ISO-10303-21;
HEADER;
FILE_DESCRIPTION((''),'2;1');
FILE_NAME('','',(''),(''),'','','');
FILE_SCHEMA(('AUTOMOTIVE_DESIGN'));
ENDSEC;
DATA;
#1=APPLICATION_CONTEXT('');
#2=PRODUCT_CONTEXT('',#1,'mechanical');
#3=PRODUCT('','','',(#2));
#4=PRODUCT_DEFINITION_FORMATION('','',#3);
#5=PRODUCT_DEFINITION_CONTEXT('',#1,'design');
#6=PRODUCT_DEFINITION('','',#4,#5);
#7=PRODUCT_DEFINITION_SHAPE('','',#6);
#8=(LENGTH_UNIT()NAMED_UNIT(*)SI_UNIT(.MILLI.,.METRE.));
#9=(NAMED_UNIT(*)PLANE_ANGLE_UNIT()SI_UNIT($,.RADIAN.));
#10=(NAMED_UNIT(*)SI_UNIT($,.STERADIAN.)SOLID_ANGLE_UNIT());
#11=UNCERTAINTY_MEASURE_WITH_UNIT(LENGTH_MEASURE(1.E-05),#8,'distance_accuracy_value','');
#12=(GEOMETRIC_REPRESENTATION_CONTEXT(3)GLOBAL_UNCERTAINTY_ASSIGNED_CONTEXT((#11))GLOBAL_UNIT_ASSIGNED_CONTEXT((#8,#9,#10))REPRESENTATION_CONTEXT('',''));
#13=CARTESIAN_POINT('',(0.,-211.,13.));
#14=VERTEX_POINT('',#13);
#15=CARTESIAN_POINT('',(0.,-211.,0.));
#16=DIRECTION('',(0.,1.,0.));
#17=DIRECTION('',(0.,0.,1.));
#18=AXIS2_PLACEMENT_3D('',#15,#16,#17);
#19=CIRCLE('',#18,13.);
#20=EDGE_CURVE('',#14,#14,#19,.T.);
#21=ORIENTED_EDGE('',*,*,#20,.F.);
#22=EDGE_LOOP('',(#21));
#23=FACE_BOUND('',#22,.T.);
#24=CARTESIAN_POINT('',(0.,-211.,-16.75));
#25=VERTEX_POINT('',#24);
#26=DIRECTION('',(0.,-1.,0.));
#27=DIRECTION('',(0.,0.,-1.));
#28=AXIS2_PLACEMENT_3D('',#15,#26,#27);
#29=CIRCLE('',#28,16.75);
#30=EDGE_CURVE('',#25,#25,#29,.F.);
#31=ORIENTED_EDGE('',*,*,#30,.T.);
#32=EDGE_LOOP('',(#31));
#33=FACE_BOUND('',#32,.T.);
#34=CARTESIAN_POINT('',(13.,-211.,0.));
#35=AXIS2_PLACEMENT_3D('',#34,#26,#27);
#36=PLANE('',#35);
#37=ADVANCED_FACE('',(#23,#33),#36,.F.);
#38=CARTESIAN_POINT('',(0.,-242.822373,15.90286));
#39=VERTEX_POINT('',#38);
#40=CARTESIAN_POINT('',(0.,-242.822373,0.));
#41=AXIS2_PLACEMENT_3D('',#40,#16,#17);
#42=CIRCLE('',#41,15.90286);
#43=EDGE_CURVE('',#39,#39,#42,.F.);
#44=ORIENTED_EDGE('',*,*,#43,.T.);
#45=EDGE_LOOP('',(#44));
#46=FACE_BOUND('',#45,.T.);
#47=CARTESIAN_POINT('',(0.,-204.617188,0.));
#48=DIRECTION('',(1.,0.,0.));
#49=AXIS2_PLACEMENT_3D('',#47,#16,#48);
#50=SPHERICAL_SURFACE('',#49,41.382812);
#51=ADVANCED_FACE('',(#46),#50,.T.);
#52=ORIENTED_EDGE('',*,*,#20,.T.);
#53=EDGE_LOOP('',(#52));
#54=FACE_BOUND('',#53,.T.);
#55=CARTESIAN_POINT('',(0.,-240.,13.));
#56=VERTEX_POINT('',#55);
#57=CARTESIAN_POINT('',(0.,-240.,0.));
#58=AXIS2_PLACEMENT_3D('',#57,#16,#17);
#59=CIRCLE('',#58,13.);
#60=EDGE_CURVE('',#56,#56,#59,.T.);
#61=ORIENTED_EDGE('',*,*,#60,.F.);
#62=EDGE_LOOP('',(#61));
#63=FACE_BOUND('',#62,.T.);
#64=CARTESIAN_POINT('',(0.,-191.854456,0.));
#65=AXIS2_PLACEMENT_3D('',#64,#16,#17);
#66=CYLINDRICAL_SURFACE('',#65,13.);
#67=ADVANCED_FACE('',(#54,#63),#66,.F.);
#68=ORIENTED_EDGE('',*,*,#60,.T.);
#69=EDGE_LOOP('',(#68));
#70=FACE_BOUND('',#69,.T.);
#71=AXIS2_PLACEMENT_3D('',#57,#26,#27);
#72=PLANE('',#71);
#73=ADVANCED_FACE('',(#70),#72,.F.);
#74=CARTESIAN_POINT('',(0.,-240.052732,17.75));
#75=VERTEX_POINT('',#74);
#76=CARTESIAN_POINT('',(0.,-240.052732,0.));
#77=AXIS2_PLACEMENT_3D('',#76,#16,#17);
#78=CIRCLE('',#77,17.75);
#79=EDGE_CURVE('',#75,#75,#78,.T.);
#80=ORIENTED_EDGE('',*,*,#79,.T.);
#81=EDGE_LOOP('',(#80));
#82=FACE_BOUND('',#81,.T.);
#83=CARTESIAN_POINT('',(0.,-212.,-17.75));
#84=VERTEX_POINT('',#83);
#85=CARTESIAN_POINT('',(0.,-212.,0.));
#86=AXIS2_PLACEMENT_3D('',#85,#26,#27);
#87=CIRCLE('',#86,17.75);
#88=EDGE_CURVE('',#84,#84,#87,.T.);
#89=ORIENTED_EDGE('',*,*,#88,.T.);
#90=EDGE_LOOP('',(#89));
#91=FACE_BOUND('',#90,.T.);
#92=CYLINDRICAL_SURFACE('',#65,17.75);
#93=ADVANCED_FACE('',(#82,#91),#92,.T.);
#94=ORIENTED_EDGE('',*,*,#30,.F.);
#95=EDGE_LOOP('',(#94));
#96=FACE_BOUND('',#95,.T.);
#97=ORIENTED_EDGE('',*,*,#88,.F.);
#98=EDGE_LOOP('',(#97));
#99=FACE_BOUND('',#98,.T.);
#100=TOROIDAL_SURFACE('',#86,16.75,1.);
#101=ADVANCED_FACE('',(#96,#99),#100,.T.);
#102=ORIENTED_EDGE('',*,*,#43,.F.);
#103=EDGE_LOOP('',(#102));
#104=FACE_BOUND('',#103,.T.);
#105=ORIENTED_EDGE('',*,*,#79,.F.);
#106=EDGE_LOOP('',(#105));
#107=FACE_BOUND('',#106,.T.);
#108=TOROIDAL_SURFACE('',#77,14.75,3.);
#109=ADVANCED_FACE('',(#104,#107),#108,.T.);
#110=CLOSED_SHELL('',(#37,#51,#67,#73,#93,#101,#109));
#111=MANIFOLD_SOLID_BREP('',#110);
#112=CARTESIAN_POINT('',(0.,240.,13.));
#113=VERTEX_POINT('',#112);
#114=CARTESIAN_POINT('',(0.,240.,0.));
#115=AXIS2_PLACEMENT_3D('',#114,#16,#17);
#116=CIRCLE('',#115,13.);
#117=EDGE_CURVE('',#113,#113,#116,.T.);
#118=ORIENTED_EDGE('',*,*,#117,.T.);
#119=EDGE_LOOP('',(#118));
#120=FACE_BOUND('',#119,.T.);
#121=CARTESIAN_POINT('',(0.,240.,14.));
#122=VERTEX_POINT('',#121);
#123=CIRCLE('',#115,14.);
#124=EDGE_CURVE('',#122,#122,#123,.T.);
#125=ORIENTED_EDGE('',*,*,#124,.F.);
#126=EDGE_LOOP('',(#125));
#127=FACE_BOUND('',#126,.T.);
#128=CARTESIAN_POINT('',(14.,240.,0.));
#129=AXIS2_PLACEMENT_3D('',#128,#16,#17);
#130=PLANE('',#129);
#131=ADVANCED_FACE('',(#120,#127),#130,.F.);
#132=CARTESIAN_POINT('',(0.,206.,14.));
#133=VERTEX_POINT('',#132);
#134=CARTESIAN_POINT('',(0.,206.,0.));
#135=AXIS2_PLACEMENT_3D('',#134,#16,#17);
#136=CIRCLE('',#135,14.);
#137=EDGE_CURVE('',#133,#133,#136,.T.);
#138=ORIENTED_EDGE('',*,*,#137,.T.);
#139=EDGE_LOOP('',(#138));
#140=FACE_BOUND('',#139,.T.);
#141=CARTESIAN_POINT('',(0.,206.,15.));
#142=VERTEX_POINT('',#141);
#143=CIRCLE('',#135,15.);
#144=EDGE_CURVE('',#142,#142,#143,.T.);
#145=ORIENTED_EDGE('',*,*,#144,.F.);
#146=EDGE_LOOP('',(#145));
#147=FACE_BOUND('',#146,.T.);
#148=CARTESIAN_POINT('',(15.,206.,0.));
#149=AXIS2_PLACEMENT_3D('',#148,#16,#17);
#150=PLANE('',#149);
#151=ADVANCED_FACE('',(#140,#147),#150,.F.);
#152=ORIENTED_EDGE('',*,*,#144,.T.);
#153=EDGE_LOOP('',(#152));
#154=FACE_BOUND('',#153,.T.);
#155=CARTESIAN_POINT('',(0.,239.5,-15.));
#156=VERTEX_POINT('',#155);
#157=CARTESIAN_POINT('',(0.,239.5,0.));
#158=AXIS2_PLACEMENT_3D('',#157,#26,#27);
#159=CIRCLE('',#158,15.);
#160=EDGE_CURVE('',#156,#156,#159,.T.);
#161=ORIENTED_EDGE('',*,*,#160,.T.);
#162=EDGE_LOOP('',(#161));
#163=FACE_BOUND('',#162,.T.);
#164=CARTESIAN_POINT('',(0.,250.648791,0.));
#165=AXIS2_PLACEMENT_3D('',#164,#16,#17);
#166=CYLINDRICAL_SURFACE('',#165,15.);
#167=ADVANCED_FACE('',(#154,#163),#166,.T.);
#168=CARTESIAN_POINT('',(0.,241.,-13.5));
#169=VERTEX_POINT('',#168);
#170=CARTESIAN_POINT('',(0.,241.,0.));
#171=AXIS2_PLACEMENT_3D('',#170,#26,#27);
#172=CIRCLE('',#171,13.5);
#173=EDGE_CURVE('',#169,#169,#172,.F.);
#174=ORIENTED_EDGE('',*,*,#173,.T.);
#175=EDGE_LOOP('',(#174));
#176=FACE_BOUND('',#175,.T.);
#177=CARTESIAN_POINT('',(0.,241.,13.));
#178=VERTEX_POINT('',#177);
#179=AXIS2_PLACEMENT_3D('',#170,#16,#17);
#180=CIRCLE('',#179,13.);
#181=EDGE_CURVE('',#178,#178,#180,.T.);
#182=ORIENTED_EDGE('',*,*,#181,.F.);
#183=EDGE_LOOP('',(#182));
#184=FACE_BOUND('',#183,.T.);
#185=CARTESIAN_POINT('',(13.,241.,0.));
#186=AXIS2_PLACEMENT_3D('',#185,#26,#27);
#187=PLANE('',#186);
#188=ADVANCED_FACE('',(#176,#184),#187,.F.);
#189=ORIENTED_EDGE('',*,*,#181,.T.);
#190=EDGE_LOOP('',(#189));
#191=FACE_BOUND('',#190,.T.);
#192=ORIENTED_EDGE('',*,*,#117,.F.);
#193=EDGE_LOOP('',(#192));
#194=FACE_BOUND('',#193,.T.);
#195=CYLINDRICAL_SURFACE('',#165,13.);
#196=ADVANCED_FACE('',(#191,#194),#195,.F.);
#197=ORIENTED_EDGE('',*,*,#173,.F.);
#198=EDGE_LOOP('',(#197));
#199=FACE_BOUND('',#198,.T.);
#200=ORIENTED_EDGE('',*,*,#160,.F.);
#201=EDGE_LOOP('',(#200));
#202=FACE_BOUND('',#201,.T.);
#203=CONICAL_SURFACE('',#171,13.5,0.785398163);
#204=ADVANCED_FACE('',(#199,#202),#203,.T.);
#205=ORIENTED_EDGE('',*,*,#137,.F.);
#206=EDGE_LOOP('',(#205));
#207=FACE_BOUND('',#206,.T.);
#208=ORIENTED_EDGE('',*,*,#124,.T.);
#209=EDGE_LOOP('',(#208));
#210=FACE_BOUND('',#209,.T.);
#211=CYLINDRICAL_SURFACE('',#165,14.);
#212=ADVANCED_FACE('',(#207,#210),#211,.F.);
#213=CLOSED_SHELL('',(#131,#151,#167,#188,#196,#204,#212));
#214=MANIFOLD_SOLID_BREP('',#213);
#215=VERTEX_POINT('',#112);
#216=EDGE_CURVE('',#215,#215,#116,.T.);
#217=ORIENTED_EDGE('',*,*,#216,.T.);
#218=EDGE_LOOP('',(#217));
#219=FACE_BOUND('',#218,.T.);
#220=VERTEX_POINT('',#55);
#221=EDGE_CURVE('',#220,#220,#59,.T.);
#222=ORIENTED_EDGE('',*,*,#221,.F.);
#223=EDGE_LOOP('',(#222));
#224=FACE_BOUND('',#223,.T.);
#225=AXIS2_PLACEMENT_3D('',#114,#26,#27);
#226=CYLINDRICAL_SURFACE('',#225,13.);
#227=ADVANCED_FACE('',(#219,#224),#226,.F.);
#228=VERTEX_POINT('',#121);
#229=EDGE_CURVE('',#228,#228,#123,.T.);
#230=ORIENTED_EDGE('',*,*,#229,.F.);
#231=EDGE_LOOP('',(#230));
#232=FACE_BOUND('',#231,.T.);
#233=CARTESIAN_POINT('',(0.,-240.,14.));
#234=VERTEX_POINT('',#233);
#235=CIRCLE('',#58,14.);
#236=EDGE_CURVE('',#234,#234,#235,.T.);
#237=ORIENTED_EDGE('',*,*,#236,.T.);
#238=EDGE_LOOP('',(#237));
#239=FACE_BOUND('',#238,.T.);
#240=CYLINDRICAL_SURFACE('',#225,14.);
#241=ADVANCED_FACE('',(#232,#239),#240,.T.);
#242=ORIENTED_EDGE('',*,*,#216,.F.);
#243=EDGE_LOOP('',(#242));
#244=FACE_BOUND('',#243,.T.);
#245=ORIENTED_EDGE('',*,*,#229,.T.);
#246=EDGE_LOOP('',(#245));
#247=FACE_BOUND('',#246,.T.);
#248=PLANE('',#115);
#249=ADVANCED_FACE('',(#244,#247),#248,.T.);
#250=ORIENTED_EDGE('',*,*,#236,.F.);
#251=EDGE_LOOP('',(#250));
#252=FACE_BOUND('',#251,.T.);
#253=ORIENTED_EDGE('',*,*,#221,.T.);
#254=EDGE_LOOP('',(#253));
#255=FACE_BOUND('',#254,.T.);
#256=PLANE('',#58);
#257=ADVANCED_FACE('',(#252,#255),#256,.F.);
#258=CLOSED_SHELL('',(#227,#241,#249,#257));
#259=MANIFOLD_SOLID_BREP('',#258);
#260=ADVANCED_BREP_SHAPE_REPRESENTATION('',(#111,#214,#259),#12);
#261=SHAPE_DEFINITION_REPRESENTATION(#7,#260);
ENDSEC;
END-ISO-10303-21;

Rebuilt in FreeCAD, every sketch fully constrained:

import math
import FreeCAD as App
import Part
import Sketcher
from FreeCAD import Vector
Q = App.Units.Quantity


def edges_at(feature, points):
    """Names of the edges that pass closest to the given points."""
    edges = feature.Shape.Edges
    near = lambda p: min(range(len(edges)), key=lambda i: edges[i].distToShape(Part.Vertex(*p))[0])
    return sorted({f"Edge{near(p) + 1}" for p in points})


def add_polygon(sketch, points):
    """Adds a closed chain of lines whose ends are joined by coincident constraints."""
    first, n = sketch.GeometryCount, len(points)
    for a, b in zip(points, points[1:] + points[:1]):
        sketch.addGeometry(Part.LineSegment(App.Vector(*a, 0), App.Vector(*b, 0)), False)
    for i in range(n):
        sketch.addConstraint(Sketcher.Constraint("Coincident", first + i, 2, first + (i + 1) % n, 1))

doc = App.newDocument("Part")
body = doc.addObject("PartDesign::Body", "Body")

# Sketch on XZ plane
sketch1 = body.newObject("Sketcher::SketchObject", "Sketch")
sketch1.AttachmentSupport = (doc.getObject("XZ_Plane"), [""])
sketch1.MapMode = "FlatFace"
sketch1.addGeometry(Part.Circle(Vector(0, 0, 0), Vector(0, 0, 1), 14), False)
sketch1.addGeometry(Part.Circle(Vector(0, 0, 0), Vector(0, 0, 1), 13), False)
sketch1.addConstraint(Sketcher.Constraint("Coincident", 0, 3, -1, 1))
sketch1.addConstraint(Sketcher.Constraint("Coincident", 1, 3, -1, 1))
sketch1.addConstraint(Sketcher.Constraint("Diameter", 0, Q("28 mm")))
sketch1.addConstraint(Sketcher.Constraint("Diameter", 1, Q("26 mm")))
pad1 = body.newObject("PartDesign::Pad", "Pad")
pad1.Profile = sketch1
pad1.Length = 480
pad1.Midplane = True
body2 = doc.addObject("PartDesign::Body", "Body001")

# Sketch on XY plane
sketch2 = body2.newObject("Sketcher::SketchObject", "Sketch001")
sketch2.AttachmentSupport = (doc.getObject("XY_Plane001"), [""])
sketch2.MapMode = "FlatFace"
sketch2.addGeometry(Part.LineSegment(Vector(17.8, -211, 0), Vector(13, -211, 0)), False)
sketch2.addGeometry(Part.LineSegment(Vector(13, -211, 0), Vector(13, -240, 0)), False)
sketch2.addGeometry(Part.LineSegment(Vector(13, -240, 0), Vector(0, -240, 0)), False)
sketch2.addGeometry(Part.LineSegment(Vector(0, -240, 0), Vector(0, -246, 0)), False)
sketch2.addGeometry(Part.ArcOfCircle(Part.Circle(Vector(0, -204.6, 0), Vector(0, 0, 1), 41.4), math.radians(-90), math.radians(-65)), False)
sketch2.addGeometry(Part.LineSegment(Vector(17.8, -242, 0), Vector(17.8, -211, 0)), False)
sketch2.addConstraint(Sketcher.Constraint("Coincident", 0, 2, 1, 1))
sketch2.addConstraint(Sketcher.Constraint("Coincident", 1, 2, 2, 1))
sketch2.addConstraint(Sketcher.Constraint("Coincident", 2, 2, 3, 1))
sketch2.addConstraint(Sketcher.Constraint("Coincident", 3, 2, 4, 1))
sketch2.addConstraint(Sketcher.Constraint("Coincident", 4, 2, 5, 1))
sketch2.addConstraint(Sketcher.Constraint("Coincident", 5, 2, 0, 1))
sketch2.addConstraint(Sketcher.Constraint("Horizontal", 0))
sketch2.addConstraint(Sketcher.Constraint("Vertical", 1))
sketch2.addConstraint(Sketcher.Constraint("Horizontal", 2))
sketch2.addConstraint(Sketcher.Constraint("Vertical", 3))
sketch2.addConstraint(Sketcher.Constraint("Vertical", 5))
sketch2.addConstraint(Sketcher.Constraint("PointOnObject", 4, 3, -2))
sketch2.addConstraint(Sketcher.Constraint("PointOnObject", 2, 2, -2))
sketch2.addConstraint(Sketcher.Constraint("DistanceX", 2, 2, 2, 1, Q("13 mm")))
sketch2.addConstraint(Sketcher.Constraint("DistanceY", 1, 2, 1, 1, Q("29 mm")))
sketch2.addConstraint(Sketcher.Constraint("DistanceY", 3, 2, 3, 1, Q("6 mm")))
sketch2.addConstraint(Sketcher.Constraint("DistanceY", 5, 1, 5, 2, Q("31 mm")))
sketch2.addConstraint(Sketcher.Constraint("DistanceY", 0, 2, -1, 1, Q("211 mm")))
sketch2.addConstraint(Sketcher.Constraint("DistanceX", 0, 2, 0, 1, Q("4.75 mm")))
revolution = body2.newObject("PartDesign::Revolution", "Revolution")
revolution.Profile = sketch2
revolution.ReferenceAxis = (sketch2, ["V_Axis"])
revolution.Angle = 360
doc.recompute()

fillet = body2.newObject("PartDesign::Fillet", "Fillet")
fillet.Base = (revolution, edges_at(revolution, [(-17.75, -242, 0)]))
fillet.Radius = 3
doc.recompute()

fillet2 = body2.newObject("PartDesign::Fillet", "Fillet001")
fillet2.Base = (fillet, edges_at(fillet, [(-17.75, -211, 0)]))
fillet2.Radius = 1
body3 = doc.addObject("PartDesign::Body", "Body002")

# Sketch on XY plane
sketch3 = body3.newObject("Sketcher::SketchObject", "Sketch002")
sketch3.AttachmentSupport = (doc.getObject("XY_Plane002"), [""])
sketch3.MapMode = "FlatFace"
add_polygon(sketch3, [(15, 206), (15, 241), (13, 241), (13, 240), (14, 240), (14, 206)])  # lines 0-5
sketch3.addConstraint(Sketcher.Constraint("Vertical", 0))
sketch3.addConstraint(Sketcher.Constraint("Horizontal", 1))
sketch3.addConstraint(Sketcher.Constraint("Vertical", 2))
sketch3.addConstraint(Sketcher.Constraint("Horizontal", 3))
sketch3.addConstraint(Sketcher.Constraint("Vertical", 4))
sketch3.addConstraint(Sketcher.Constraint("Horizontal", 5))
sketch3.addConstraint(Sketcher.Constraint("Equal", 3, 5))
sketch3.addConstraint(Sketcher.Constraint("Equal", 5, 2))
sketch3.addConstraint(Sketcher.Constraint("DistanceX", 1, 2, 1, 1, Q("2 mm")))
sketch3.addConstraint(Sketcher.Constraint("DistanceY", 0, 1, 0, 2, Q("35 mm")))
sketch3.addConstraint(Sketcher.Constraint("DistanceX", -1, 1, 0, 2, Q("15 mm")))
sketch3.addConstraint(Sketcher.Constraint("DistanceY", -1, 1, 0, 2, Q("241 mm")))
revolution2 = body3.newObject("PartDesign::Revolution", "Revolution001")
revolution2.Profile = sketch3
revolution2.ReferenceAxis = (sketch3, ["V_Axis"])
revolution2.Angle = 360
doc.recompute()

chamfer = body3.newObject("PartDesign::Chamfer", "Chamfer")
chamfer.Base = (revolution2, edges_at(revolution2, [(-15, 241, 0)]))
chamfer.Size = 1.5

doc.recompute()
